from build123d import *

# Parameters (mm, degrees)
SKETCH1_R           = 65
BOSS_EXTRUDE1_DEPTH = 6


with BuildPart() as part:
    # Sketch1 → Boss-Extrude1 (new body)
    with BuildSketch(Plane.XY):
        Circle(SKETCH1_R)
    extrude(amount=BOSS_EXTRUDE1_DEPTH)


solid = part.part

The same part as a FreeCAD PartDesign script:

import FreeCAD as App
import Part
import Sketcher

V = App.Vector
Q = App.Units.Quantity

doc = App.newDocument("Part")
body = doc.addObject("PartDesign::Body", "Body")

sketch1 = body.newObject("Sketcher::SketchObject", "Sketch")
sketch1.AttachmentSupport = (doc.getObject("XY_Plane"), [""])
sketch1.MapMode = "FlatFace"
sketch1.addGeometry(Part.Circle(V(0, 0, 0), V(0, 0, 1), 65), False)
sketch1.addConstraint(Sketcher.Constraint("Coincident", 0, 3, -1, 1))
sketch1.addConstraint(Sketcher.Constraint("Diameter", 0, Q("130 mm")))
pad1 = body.newObject("PartDesign::Pad", "Pad")
pad1.Profile = sketch1
pad1.Length = 6

doc.recompute()
